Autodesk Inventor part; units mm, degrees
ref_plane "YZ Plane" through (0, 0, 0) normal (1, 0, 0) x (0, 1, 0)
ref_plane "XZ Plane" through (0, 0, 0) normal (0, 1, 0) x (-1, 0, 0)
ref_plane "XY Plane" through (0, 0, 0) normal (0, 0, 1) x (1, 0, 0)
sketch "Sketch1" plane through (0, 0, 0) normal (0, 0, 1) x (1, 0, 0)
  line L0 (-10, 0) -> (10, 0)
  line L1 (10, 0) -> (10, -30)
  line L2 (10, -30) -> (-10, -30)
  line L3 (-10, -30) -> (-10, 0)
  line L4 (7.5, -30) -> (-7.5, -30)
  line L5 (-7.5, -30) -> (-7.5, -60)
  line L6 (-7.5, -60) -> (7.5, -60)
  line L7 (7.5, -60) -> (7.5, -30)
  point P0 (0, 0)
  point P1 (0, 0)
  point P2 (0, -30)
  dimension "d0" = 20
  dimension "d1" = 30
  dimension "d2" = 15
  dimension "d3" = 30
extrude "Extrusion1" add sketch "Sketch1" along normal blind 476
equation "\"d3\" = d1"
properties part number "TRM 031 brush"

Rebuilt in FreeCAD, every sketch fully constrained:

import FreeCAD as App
import Part
import Sketcher

doc = App.newDocument("Part")
body = doc.addObject("PartDesign::Body", "Body")

sketch1 = body.newObject("Sketcher::SketchObject", "Sketch")
sketch1.AttachmentSupport = (doc.getObject("XY_Plane"), [""])
sketch1.MapMode = "FlatFace"
sketch1.addGeometry(Part.LineSegment(App.Vector(10, 0, 0), App.Vector(-10, 0, 0)), False)
sketch1.addGeometry(Part.LineSegment(App.Vector(-10, 0, 0), App.Vector(-10, -30, 0)), False)
sketch1.addGeometry(Part.LineSegment(App.Vector(-10, -30, 0), App.Vector(-7.5, -30, 0)), False)
sketch1.addGeometry(Part.LineSegment(App.Vector(-7.5, -30, 0), App.Vector(-7.5, -60, 0)), False)
sketch1.addGeometry(Part.LineSegment(App.Vector(-7.5, -60, 0), App.Vector(7.5, -60, 0)), False)
sketch1.addGeometry(Part.LineSegment(App.Vector(7.5, -60, 0), App.Vector(7.5, -30, 0)), False)
sketch1.addGeometry(Part.LineSegment(App.Vector(7.5, -30, 0), App.Vector(10, -30, 0)), False)
sketch1.addGeometry(Part.LineSegment(App.Vector(10, -30, 0), App.Vector(10, 0, 0)), False)
sketch1.addConstraint(Sketcher.Constraint("Coincident", 0, 2, 1, 1))
sketch1.addConstraint(Sketcher.Constraint("Coincident", 1, 2, 2, 1))
sketch1.addConstraint(Sketcher.Constraint("Coincident", 2, 2, 3, 1))
sketch1.addConstraint(Sketcher.Constraint("Coincident", 3, 2, 4, 1))
sketch1.addConstraint(Sketcher.Constraint("Coincident", 4, 2, 5, 1))
sketch1.addConstraint(Sketcher.Constraint("Coincident", 5, 2, 6, 1))
sketch1.addConstraint(Sketcher.Constraint("Coincident", 6, 2, 7, 1))
sketch1.addConstraint(Sketcher.Constraint("Coincident", 7, 2, 0, 1))
sketch1.addConstraint(Sketcher.Constraint("Horizontal", 0))
sketch1.addConstraint(Sketcher.Constraint("Vertical", 1))
sketch1.addConstraint(Sketcher.Constraint("Horizontal", 2))
sketch1.addConstraint(Sketcher.Constraint("Vertical", 3))
sketch1.addConstraint(Sketcher.Constraint("Horizontal", 4))
sketch1.addConstraint(Sketcher.Constraint("Vertical", 5))
sketch1.addConstraint(Sketcher.Constraint("Horizontal", 6))
sketch1.addConstraint(Sketcher.Constraint("Vertical", 7))
sketch1.addConstraint(Sketcher.Constraint("Symmetric", 0, 2, 7, 2, -1, 1))
sketch1.addConstraint(Sketcher.Constraint("Symmetric", 2, 2, 5, 2, -2))
sketch1.addConstraint(Sketcher.Constraint("Equal", 1, 3))
sketch1.addConstraint(Sketcher.Constraint("DistanceX", 0, 2, 0, 1, 20.0))
sketch1.addConstraint(Sketcher.Constraint("DistanceX", 4, 1, 4, 2, 15.0))
sketch1.addConstraint(Sketcher.Constraint("DistanceY", 1, 2, 1, 1, 30.0))
pad1 = body.newObject("PartDesign::Pad", "Pad")
pad1.Profile = sketch1
pad1.Length = 476

doc.recompute()
